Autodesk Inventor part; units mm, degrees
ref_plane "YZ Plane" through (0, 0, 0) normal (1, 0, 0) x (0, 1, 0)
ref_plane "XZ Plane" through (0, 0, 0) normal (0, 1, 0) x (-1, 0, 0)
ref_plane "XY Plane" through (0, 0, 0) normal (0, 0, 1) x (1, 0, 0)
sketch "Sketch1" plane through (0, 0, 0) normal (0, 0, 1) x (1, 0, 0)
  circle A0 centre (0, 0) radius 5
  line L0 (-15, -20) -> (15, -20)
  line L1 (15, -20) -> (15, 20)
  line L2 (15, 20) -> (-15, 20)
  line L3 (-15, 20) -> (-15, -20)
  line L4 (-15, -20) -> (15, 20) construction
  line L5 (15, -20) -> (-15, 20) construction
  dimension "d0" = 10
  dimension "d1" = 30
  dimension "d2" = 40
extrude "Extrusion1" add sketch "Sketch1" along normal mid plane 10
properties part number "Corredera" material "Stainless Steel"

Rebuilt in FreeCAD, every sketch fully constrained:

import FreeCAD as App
import Part
import Sketcher
Q = App.Units.Quantity


def add_polygon(sketch, points):
    """Adds a closed chain of lines whose ends are joined by coincident constraints."""
    first, n = sketch.GeometryCount, len(points)
    for a, b in zip(points, points[1:] + points[:1]):
        sketch.addGeometry(Part.LineSegment(App.Vector(*a, 0), App.Vector(*b, 0)), False)
    for i in range(n):
        sketch.addConstraint(Sketcher.Constraint("Coincident", first + i, 2, first + (i + 1) % n, 1))

doc = App.newDocument("Part")
body = doc.addObject("PartDesign::Body", "Body")

sketch1 = doc.addObject("Sketcher::SketchObject", "Sketch")
body.addObject(sketch1)
sketch1.AttachmentSupport = (doc.XY_Plane, [""])
sketch1.MapMode = "FlatFace"
add_polygon(sketch1, [(-15, 20), (-15, -20), (15, -20), (15, 20)])
sketch1.addGeometry(Part.Circle(App.Vector(0, 0, 0), App.Vector(0, 0, 1), 5), False)
sketch1.addConstraint([
    Sketcher.Constraint("Vertical", 0),
    Sketcher.Constraint("Horizontal", 1),
    Sketcher.Constraint("Vertical", 2),
    Sketcher.Constraint("Horizontal", 3),
    Sketcher.Constraint("Coincident", 4, 3, -1, 1),
    Sketcher.Constraint("Symmetric", 0, 2, 2, 2, -1, 1),
    Sketcher.Constraint("Diameter", 4, Q("10 mm")),
    Sketcher.Constraint("DistanceX", 1, 1, 1, 2, Q("30 mm")),
    Sketcher.Constraint("DistanceY", 0, 2, 0, 1, Q("40 mm")),
])
pad1 = doc.addObject("PartDesign::Pad", "Pad")
body.addObject(pad1)
pad1.Profile = sketch1
pad1.Length = 10
pad1.Midplane = True

doc.recompute()
